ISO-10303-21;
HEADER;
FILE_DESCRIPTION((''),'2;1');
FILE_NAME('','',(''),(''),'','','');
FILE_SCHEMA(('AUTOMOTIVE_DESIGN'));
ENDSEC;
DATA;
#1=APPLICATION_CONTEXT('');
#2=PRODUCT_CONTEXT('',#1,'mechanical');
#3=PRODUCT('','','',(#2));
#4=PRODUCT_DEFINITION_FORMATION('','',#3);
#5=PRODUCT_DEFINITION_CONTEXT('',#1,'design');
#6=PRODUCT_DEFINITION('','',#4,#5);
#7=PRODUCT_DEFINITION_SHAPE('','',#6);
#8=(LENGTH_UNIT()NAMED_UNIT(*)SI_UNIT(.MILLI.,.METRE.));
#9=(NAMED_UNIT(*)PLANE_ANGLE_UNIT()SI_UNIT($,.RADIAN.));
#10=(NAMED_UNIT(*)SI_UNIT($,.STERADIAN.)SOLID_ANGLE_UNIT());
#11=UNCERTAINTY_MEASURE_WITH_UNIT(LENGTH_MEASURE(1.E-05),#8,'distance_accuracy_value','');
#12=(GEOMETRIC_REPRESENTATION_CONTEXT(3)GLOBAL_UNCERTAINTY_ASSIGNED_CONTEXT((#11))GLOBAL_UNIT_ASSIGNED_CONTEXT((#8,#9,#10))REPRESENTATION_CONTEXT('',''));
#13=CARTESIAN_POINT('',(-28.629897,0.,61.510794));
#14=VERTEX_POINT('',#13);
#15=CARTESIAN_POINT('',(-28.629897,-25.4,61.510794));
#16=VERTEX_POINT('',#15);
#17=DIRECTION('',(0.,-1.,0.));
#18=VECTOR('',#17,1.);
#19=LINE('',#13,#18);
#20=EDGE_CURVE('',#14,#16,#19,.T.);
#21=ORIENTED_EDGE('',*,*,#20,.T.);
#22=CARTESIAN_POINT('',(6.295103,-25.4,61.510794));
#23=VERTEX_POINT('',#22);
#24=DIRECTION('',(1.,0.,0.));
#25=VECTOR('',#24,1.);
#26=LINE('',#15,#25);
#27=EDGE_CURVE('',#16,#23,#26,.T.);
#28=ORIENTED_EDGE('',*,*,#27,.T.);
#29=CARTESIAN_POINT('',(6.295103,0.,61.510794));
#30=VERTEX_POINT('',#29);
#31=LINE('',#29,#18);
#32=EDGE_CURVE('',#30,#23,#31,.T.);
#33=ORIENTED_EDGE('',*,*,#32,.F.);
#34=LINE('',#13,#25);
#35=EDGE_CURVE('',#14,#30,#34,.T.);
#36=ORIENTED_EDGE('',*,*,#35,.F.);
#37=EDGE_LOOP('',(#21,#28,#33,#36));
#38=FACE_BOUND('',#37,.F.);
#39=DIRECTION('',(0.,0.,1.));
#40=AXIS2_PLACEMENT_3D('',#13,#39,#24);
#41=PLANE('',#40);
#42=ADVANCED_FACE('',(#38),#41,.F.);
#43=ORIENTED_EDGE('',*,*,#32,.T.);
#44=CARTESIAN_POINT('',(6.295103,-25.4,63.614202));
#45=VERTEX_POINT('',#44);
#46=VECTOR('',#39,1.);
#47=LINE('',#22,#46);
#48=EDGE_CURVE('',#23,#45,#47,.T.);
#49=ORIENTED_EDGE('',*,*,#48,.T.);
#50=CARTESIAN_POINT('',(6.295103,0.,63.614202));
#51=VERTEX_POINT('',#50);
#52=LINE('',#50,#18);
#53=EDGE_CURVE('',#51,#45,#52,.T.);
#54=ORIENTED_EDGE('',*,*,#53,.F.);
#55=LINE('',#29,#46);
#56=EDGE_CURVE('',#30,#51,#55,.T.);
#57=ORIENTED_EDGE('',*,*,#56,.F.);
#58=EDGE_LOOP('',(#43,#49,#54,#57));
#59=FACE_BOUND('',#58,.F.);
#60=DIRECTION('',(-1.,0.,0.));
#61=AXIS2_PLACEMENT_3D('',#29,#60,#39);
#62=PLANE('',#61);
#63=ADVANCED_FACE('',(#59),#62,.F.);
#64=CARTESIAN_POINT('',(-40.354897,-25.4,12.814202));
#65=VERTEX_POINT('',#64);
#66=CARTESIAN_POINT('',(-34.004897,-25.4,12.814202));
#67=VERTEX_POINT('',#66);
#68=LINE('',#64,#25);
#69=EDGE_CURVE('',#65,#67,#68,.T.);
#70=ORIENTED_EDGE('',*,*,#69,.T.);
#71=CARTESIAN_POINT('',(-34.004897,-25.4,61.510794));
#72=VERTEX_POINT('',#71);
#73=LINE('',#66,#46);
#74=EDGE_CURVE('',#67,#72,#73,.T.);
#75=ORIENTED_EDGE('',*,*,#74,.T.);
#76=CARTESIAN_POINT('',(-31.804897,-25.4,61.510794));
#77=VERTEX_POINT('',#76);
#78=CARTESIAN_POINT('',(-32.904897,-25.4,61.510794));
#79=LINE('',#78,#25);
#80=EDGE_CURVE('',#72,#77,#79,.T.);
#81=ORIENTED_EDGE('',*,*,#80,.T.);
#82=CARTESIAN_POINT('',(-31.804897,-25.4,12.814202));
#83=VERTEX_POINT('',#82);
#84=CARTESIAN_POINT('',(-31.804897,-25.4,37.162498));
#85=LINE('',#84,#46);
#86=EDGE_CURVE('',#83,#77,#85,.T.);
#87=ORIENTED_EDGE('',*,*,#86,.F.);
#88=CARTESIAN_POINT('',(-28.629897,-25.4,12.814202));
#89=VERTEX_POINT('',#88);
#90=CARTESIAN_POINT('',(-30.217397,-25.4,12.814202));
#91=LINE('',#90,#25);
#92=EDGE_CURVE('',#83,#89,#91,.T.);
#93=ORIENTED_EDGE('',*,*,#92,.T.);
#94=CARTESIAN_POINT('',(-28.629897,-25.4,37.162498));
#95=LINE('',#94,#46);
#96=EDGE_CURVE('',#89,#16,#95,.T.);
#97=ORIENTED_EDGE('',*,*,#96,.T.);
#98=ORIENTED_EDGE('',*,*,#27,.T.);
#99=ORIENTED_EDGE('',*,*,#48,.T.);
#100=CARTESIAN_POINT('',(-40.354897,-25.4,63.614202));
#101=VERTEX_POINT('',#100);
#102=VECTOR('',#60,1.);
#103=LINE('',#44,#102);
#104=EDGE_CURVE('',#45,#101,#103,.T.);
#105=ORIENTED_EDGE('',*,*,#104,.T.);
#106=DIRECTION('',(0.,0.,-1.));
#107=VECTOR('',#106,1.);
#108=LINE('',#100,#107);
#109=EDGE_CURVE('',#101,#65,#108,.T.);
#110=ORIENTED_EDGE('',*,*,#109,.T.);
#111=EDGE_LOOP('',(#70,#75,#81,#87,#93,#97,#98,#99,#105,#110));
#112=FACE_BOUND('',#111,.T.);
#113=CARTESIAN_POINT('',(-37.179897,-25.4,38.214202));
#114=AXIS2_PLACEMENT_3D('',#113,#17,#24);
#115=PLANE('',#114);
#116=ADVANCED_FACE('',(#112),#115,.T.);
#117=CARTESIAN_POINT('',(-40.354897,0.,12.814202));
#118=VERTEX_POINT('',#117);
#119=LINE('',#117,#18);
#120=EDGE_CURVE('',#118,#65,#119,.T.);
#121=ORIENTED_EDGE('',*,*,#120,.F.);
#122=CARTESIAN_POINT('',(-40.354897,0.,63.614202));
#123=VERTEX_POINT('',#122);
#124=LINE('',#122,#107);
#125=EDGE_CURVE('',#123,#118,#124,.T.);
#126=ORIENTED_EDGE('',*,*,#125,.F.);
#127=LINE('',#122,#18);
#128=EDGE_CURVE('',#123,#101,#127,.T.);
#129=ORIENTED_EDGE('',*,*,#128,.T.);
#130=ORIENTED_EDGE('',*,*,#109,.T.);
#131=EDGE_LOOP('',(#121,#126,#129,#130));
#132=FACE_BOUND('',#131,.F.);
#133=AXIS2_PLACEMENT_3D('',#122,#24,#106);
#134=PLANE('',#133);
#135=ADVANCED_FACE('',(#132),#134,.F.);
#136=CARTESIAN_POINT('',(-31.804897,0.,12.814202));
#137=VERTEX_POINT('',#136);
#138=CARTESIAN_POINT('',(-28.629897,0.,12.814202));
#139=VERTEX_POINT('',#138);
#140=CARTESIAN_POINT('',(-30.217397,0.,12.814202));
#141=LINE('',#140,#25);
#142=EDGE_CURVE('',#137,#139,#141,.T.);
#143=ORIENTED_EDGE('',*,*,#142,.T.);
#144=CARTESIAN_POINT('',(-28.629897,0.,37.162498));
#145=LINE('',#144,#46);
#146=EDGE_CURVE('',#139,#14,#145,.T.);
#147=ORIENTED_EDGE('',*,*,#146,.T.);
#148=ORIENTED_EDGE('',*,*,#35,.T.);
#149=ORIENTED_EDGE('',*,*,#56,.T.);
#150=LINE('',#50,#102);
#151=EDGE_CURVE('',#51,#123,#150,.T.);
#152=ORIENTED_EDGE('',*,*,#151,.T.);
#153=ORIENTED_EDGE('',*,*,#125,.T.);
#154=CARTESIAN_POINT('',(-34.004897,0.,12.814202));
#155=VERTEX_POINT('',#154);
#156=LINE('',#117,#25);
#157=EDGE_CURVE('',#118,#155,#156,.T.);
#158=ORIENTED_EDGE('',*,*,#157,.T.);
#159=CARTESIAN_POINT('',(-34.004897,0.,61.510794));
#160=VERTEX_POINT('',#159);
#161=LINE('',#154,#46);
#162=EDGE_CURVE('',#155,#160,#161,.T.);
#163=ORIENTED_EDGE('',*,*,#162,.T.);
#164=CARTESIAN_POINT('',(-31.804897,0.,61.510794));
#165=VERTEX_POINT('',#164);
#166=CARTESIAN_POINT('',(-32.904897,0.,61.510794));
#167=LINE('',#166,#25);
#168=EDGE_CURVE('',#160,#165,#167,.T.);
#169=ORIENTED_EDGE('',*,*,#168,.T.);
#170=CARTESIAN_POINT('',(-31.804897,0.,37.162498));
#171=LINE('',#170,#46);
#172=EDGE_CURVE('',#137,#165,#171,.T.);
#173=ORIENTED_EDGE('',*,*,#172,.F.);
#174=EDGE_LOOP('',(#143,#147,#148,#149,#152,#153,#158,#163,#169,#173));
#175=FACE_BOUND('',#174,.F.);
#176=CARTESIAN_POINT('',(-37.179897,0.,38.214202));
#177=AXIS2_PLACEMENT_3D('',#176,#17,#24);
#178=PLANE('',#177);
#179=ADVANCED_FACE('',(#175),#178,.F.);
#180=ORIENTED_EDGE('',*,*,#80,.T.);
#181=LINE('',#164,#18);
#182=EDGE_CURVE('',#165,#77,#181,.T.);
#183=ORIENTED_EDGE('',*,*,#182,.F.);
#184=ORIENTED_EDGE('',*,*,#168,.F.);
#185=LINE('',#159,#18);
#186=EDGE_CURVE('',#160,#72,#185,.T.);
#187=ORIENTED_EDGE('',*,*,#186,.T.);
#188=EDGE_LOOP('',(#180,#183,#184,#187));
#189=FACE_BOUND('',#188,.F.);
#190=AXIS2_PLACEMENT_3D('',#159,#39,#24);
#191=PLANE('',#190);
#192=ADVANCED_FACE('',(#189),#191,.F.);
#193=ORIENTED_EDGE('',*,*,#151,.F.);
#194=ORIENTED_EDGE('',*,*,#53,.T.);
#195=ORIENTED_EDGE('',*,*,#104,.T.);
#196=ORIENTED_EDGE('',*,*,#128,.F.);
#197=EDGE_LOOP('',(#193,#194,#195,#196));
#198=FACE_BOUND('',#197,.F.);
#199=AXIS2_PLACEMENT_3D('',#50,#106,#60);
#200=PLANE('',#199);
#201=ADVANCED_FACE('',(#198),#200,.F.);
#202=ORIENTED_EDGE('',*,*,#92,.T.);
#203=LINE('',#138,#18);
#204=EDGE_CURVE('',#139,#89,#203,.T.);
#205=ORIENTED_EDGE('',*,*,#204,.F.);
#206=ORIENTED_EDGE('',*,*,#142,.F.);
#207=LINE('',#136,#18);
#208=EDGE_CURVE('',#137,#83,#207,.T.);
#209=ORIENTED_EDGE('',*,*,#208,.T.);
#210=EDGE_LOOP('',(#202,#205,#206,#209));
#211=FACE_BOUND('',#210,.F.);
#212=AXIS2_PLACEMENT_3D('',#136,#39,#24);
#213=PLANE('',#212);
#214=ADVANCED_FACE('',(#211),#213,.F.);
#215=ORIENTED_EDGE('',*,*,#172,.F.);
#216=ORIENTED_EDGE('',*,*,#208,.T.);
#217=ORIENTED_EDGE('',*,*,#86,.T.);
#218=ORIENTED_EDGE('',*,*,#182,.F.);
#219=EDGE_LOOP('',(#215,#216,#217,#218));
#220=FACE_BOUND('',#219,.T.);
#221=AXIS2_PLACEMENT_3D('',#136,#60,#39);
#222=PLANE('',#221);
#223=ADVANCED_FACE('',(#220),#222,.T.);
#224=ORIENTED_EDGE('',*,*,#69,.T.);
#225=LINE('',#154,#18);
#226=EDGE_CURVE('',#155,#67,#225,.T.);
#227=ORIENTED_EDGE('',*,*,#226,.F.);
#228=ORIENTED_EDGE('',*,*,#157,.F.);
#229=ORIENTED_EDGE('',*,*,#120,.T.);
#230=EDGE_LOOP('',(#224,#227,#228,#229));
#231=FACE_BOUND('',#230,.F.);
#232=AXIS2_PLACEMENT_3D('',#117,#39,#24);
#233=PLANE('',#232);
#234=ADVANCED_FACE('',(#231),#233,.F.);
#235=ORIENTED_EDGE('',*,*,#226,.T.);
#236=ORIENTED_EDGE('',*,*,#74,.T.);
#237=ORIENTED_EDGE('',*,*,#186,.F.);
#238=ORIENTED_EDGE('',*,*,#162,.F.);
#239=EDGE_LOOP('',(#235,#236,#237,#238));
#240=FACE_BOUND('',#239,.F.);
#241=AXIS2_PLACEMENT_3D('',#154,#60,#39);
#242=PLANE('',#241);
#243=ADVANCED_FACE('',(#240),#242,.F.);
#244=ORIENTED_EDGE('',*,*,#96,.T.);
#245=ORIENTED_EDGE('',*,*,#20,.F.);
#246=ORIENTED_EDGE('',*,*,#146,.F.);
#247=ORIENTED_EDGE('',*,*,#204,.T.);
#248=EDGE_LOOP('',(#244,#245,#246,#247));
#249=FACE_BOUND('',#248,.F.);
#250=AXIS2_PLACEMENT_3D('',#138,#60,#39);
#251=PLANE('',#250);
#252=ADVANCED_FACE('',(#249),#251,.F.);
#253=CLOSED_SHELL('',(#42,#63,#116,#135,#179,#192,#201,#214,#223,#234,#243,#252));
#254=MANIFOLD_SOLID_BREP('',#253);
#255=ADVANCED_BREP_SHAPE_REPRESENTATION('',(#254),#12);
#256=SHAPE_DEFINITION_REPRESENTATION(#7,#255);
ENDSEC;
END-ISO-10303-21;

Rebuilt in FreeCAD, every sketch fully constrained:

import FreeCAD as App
import Part
import Sketcher

V = App.Vector
Q = App.Units.Quantity


def add_polygon(sketch, points):
    """Adds a closed chain of lines whose ends are joined by coincident constraints."""
    first, n = sketch.GeometryCount, len(points)
    for a, b in zip(points, points[1:] + points[:1]):
        sketch.addGeometry(Part.LineSegment(App.Vector(*a, 0), App.Vector(*b, 0)), False)
    for i in range(n):
        sketch.addConstraint(Sketcher.Constraint("Coincident", first + i, 2, first + (i + 1) % n, 1))

doc = App.newDocument("Part")
params = doc.addObject("Spreadsheet::Sheet", "Params")
for row, (alias, value) in enumerate([
    ("sketch1_height", "2 in"),
    ("sketch1_width", "0.25 in"),
    ("sketch1_width2", "0.125 in"),
    ("pad1_length", "1 in"),
], start=1):
    params.set(f"A{row}", alias)
    params.set(f"B{row}", "=" + value)
    params.setAlias(f"B{row}", alias)

body = doc.addObject("PartDesign::Body", "Body")

sketch1 = body.newObject("Sketcher::SketchObject", "Sketch")
sketch1.AttachmentSupport = (doc.getObject("XZ_Plane"), [""])
sketch1.MapMode = "FlatFace"
add_polygon(sketch1, [(-40.354897, 12.814202), (-34.004897, 12.814202), (-34.004897, 61.510794), (-31.804897, 61.510794), (-31.804897, 12.814202), (-28.629897, 12.814202), (-28.629897, 61.510794), (6.295103, 61.510794), (6.295103, 63.614202), (-40.354897, 63.614202)])
sketch1.addConstraint([
    Sketcher.Constraint("Horizontal", 0),
    Sketcher.Constraint("Vertical", 1),
    Sketcher.Constraint("Horizontal", 2),
    Sketcher.Constraint("Vertical", 3),
    Sketcher.Constraint("Horizontal", 4),
    Sketcher.Constraint("Vertical", 5),
    Sketcher.Constraint("Horizontal", 6),
    Sketcher.Constraint("Vertical", 7),
    Sketcher.Constraint("Horizontal", 8),
    Sketcher.Constraint("Vertical", 9),
    Sketcher.Constraint("Horizontal", 0, 2, 3, 2),
    Sketcher.Constraint("Horizontal", 2, 2, 5, 2),
    Sketcher.Constraint("DistanceY", 9, 2, 9, 1, Q("2 in")),
    Sketcher.Constraint("DistanceX", 0, 1, 0, 2, Q("0.25 in")),
    Sketcher.Constraint("DistanceX", 2, 2, 6, 2, Q("1.5 in")),
    Sketcher.Constraint("DistanceX", 4, 1, 4, 2, Q("0.125 in")),
    Sketcher.Constraint("DistanceX", 2, 1, 2, 2, 2.2),
    Sketcher.Constraint("DistanceY", 1, 1, 1, 2, 48.696592),
    Sketcher.Constraint("DistanceX", 0, 2, -1, 1, 34.004897),
    Sketcher.Constraint("DistanceY", -1, 1, 0, 2, 12.814202),
])
sketch1.setExpression("Constraints[22]", "Params.sketch1_height")
sketch1.setExpression("Constraints[23]", "Params.sketch1_width")
sketch1.setExpression("Constraints[25]", "Params.sketch1_width2")
pad1 = body.newObject("PartDesign::Pad", "Pad")
pad1.Profile = sketch1
pad1.setExpression("Length", "Params.pad1_length")

doc.recompute()
